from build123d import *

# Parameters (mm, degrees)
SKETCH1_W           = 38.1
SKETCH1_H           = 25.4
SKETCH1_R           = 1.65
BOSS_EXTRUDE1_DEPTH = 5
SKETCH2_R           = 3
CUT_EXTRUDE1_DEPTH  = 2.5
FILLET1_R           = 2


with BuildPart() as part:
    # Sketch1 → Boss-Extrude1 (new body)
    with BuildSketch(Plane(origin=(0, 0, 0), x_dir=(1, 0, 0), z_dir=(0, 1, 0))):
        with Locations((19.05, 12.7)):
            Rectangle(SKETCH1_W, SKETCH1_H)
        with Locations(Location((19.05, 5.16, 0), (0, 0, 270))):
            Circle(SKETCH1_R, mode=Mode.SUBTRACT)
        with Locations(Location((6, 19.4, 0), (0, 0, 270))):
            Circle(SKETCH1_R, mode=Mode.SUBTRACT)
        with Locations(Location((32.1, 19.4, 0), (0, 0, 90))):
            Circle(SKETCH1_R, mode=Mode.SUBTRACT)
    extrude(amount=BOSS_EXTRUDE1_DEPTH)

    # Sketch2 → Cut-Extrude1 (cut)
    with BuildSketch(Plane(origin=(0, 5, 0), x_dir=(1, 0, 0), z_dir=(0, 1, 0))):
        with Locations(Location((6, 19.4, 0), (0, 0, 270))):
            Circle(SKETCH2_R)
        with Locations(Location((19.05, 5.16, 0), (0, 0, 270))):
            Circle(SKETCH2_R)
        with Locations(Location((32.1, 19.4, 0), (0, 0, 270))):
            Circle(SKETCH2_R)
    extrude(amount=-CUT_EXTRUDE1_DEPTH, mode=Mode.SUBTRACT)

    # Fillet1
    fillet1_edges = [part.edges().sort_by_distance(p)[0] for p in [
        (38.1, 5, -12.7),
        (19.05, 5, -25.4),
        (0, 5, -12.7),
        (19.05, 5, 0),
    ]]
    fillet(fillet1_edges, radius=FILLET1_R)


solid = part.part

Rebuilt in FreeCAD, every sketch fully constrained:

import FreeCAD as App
import Part
import Sketcher


def edges_at(feature, points):
    """Names of the edges that pass closest to the given points."""
    edges = feature.Shape.Edges
    near = lambda p: min(range(len(edges)), key=lambda i: edges[i].distToShape(Part.Vertex(*p))[0])
    return sorted({f"Edge{near(p) + 1}" for p in points})


def add_polygon(sketch, points):
    """Adds a closed chain of lines whose ends are joined by coincident constraints."""
    first, n = sketch.GeometryCount, len(points)
    for a, b in zip(points, points[1:] + points[:1]):
        sketch.addGeometry(Part.LineSegment(App.Vector(*a, 0), App.Vector(*b, 0)), False)
    for i in range(n):
        sketch.addConstraint(Sketcher.Constraint("Coincident", first + i, 2, first + (i + 1) % n, 1))

doc = App.newDocument("Part")
body = doc.addObject("PartDesign::Body", "Body")

sketch1 = doc.addObject("Sketcher::SketchObject", "Sketch")
body.addObject(sketch1)
sketch1.AttachmentSupport = (doc.XZ_Plane, [""])
sketch1.MapMode = "FlatFace"
add_polygon(sketch1, [(0, -25.4), (0, 0), (38.1, 0), (38.1, -25.4)])
sketch1.addGeometry(Part.Circle(App.Vector(19.1, -5.2, 0), App.Vector(0, 0, 1), 1.6), False)
sketch1.addGeometry(Part.Circle(App.Vector(6, -19.4, 0), App.Vector(0, 0, 1), 1.6), False)
sketch1.addGeometry(Part.Circle(App.Vector(32.1, -19.4, 0), App.Vector(0, 0, 1), 1.6), False)
sketch1.addConstraint([
    Sketcher.Constraint("Vertical", 0),
    Sketcher.Constraint("Horizontal", 1),
    Sketcher.Constraint("Vertical", 2),
    Sketcher.Constraint("Horizontal", 3),
    Sketcher.Constraint("Coincident", 0, 2, -1, 1),
    Sketcher.Constraint("Equal", 4, 5),
    Sketcher.Constraint("Equal", 5, 6),
    Sketcher.Constraint("Horizontal", 5, 3, 6, 3),
    Sketcher.Constraint("Diameter", 4, 3.3),
    Sketcher.Constraint("DistanceX", 1, 1, 1, 2, 38.1),
    Sketcher.Constraint("DistanceY", 0, 1, 0, 2, 25.4),
    Sketcher.Constraint("DistanceX", -1, 1, 5, 3, 6.0),
    Sketcher.Constraint("DistanceX", 6, 3, 1, 2, 6.0),
    Sketcher.Constraint("DistanceY", 2, 2, 6, 3, 6.0),
    Sketcher.Constraint("DistanceX", -1, 1, 4, 3, 19.05),
    Sketcher.Constraint("DistanceY", 4, 3, -1, 1, 5.16),
])
pad1 = doc.addObject("PartDesign::Pad", "Pad")
body.addObject(pad1)
pad1.Profile = sketch1
pad1.Length = 5
pad1.Reversed = True

sketch2 = doc.addObject("Sketcher::SketchObject", "Sketch001")
body.addObject(sketch2)
sketch2.AttachmentSupport = (doc.XZ_Plane, [""])
sketch2.MapMode = "FlatFace"
sketch2.AttachmentOffset = App.Placement(App.Vector(0, 0, -5), App.Rotation())
sketch2.addGeometry([
    Part.Circle(App.Vector(6, -19.4, 0), App.Vector(0, 0, 1), 3),
    Part.Circle(App.Vector(19.1, -5.2, 0), App.Vector(0, 0, 1), 3),
    Part.Circle(App.Vector(32.1, -19.4, 0), App.Vector(0, 0, 1), 3),
], False)
sketch2.addConstraint([
    Sketcher.Constraint("Equal", 0, 1),
    Sketcher.Constraint("Equal", 1, 2),
    Sketcher.Constraint("Horizontal", 0, 3, 2, 3),
    Sketcher.Constraint("Diameter", 0, 6.0),
    Sketcher.Constraint("DistanceX", -1, 1, 0, 3, 6.0),
    Sketcher.Constraint("DistanceY", 0, 3, -1, 1, 19.4),
    Sketcher.Constraint("DistanceX", -1, 1, 2, 3, 32.1),
    Sketcher.Constraint("DistanceX", -1, 1, 1, 3, 19.05),
    Sketcher.Constraint("DistanceY", 1, 3, -1, 1, 5.16),
])
pocket1 = doc.addObject("PartDesign::Pocket", "Pocket")
body.addObject(pocket1)
pocket1.Profile = sketch2
pocket1.Length = 2.5
pocket1.Reversed = True
doc.recompute()

fillet = doc.addObject("PartDesign::Fillet", "Fillet")
body.addObject(fillet)
fillet.Base = (pocket1, edges_at(pocket1, [
    (38.1, 5, -12.7),
    (19.05, 5, -25.4),
    (0, 5, -12.7),
    (19.05, 5, 0),
]))
fillet.Radius = 2

doc.recompute()
